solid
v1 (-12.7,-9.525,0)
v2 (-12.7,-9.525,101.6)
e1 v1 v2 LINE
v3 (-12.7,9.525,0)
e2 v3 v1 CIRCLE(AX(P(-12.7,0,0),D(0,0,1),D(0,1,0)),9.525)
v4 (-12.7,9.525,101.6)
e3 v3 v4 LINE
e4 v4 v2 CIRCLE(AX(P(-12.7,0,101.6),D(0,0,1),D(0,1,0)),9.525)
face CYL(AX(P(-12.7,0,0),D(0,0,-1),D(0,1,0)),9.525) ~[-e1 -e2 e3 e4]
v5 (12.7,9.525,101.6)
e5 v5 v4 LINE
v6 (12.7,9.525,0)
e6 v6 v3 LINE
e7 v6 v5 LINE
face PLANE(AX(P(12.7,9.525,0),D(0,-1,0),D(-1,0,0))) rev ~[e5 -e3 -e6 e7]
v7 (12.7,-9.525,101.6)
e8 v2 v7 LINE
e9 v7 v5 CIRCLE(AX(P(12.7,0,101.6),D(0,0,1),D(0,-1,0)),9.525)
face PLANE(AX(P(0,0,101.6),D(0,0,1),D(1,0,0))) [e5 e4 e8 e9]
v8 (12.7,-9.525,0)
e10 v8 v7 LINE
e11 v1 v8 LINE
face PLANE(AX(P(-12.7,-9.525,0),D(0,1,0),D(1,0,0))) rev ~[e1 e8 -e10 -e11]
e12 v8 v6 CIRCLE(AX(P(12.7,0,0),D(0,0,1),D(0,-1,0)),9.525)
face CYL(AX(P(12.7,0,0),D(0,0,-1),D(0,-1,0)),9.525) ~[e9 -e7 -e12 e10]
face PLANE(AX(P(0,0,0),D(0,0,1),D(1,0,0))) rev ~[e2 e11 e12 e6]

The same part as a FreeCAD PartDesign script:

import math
import FreeCAD as App
import Part
import Sketcher
from FreeCAD import Vector
Q = App.Units.Quantity

doc = App.newDocument("Part")
body = doc.addObject("PartDesign::Body", "Body")

# Sketch on XY plane
sketch1 = body.newObject("Sketcher::SketchObject", "Sketch")
sketch1.AttachmentSupport = (doc.getObject("XY_Plane"), [""])
sketch1.MapMode = "FlatFace"
sketch1.addGeometry([
    Part.ArcOfCircle(Part.Circle(Vector(-13, 0, 0), Vector(0, 0, 1), 10), math.radians(90), math.radians(270)),
    Part.LineSegment(Vector(-13, -10, 0), Vector(13, -10, 0)),
    Part.ArcOfCircle(Part.Circle(Vector(13, 0, 0), Vector(0, 0, 1), 10), math.radians(-90), math.radians(90)),
    Part.LineSegment(Vector(13, 10, 0), Vector(-13, 10, 0)),
], False)
sketch1.addConstraint([
    Sketcher.Constraint("Tangent", 0, 2, 1, 1),
    Sketcher.Constraint("Tangent", 1, 2, 2, 1),
    Sketcher.Constraint("Tangent", 2, 2, 3, 1),
    Sketcher.Constraint("Tangent", 3, 2, 0, 1),
    Sketcher.Constraint("Horizontal", 1),
    Sketcher.Constraint("Horizontal", 3),
    Sketcher.Constraint("Symmetric", 0, 3, 2, 3, -1, 1),
    Sketcher.Constraint("DistanceX", 1, 1, 1, 2, Q("1 in")),
    Sketcher.Constraint("Radius", 0, Q("0.375 in")),
])
pad1 = body.newObject("PartDesign::Pad", "Pad")
pad1.Profile = sketch1
pad1.Length = Q("4 in")

doc.recompute()
